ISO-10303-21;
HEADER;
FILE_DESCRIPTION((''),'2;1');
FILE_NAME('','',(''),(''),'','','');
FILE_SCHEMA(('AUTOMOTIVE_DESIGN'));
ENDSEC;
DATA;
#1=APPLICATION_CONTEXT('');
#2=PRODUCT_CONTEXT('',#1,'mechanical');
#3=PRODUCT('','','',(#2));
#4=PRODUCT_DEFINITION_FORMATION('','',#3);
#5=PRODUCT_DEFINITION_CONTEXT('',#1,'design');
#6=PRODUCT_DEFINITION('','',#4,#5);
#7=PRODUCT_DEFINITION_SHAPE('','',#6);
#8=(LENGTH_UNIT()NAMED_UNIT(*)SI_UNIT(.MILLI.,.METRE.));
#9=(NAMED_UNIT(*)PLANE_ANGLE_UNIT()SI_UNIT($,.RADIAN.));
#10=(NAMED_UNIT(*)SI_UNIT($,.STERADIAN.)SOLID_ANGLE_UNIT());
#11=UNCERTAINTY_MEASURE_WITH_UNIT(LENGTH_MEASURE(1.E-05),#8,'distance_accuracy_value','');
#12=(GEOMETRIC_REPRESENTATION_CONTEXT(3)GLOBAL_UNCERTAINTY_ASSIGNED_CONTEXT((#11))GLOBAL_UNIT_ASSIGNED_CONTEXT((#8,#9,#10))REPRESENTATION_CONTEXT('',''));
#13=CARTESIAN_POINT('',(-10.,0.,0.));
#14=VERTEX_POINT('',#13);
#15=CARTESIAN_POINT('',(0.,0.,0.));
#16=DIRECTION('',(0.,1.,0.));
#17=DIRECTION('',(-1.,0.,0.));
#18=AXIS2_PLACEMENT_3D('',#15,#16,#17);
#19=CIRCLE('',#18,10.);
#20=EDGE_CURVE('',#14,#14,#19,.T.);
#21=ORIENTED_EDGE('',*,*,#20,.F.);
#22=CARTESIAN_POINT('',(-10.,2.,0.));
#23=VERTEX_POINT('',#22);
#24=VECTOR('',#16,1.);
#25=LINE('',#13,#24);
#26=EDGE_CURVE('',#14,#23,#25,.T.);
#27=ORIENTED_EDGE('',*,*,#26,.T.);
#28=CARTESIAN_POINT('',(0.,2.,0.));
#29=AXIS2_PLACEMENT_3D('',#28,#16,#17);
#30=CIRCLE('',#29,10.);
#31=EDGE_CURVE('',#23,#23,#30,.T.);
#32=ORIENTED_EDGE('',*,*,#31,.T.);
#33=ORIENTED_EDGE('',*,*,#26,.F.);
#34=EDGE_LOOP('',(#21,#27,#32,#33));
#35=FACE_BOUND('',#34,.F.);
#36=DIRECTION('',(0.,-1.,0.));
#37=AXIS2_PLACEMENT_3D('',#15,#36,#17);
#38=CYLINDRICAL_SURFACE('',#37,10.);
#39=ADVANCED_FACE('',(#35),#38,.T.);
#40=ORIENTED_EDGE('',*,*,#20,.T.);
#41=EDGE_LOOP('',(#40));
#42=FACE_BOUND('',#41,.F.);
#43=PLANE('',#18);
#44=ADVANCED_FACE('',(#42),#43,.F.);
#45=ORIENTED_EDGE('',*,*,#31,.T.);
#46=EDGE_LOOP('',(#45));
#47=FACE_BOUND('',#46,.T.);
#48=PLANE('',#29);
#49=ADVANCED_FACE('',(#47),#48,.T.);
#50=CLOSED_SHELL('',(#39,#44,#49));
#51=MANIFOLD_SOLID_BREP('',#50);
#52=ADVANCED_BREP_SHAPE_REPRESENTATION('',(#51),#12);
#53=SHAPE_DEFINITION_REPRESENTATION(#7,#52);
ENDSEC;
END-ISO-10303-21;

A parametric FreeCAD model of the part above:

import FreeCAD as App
import Part
import Sketcher

V = App.Vector
Q = App.Units.Quantity

doc = App.newDocument("Part")
body = doc.addObject("PartDesign::Body", "Body")

sketch1 = body.newObject("Sketcher::SketchObject", "Sketch")
sketch1.AttachmentSupport = (doc.getObject("XZ_Plane"), [""])
sketch1.MapMode = "FlatFace"
sketch1.addGeometry(Part.Circle(V(0, 0, 0), V(0, 0, 1), 10), False)
sketch1.addConstraint([
    Sketcher.Constraint("Coincident", 0, 3, -1, 1),
    Sketcher.Constraint("Diameter", 0, Q("20 mm")),
])
pad1 = body.newObject("PartDesign::Pad", "Pad")
pad1.Profile = sketch1
pad1.Length = 2
pad1.Reversed = True

doc.recompute()
